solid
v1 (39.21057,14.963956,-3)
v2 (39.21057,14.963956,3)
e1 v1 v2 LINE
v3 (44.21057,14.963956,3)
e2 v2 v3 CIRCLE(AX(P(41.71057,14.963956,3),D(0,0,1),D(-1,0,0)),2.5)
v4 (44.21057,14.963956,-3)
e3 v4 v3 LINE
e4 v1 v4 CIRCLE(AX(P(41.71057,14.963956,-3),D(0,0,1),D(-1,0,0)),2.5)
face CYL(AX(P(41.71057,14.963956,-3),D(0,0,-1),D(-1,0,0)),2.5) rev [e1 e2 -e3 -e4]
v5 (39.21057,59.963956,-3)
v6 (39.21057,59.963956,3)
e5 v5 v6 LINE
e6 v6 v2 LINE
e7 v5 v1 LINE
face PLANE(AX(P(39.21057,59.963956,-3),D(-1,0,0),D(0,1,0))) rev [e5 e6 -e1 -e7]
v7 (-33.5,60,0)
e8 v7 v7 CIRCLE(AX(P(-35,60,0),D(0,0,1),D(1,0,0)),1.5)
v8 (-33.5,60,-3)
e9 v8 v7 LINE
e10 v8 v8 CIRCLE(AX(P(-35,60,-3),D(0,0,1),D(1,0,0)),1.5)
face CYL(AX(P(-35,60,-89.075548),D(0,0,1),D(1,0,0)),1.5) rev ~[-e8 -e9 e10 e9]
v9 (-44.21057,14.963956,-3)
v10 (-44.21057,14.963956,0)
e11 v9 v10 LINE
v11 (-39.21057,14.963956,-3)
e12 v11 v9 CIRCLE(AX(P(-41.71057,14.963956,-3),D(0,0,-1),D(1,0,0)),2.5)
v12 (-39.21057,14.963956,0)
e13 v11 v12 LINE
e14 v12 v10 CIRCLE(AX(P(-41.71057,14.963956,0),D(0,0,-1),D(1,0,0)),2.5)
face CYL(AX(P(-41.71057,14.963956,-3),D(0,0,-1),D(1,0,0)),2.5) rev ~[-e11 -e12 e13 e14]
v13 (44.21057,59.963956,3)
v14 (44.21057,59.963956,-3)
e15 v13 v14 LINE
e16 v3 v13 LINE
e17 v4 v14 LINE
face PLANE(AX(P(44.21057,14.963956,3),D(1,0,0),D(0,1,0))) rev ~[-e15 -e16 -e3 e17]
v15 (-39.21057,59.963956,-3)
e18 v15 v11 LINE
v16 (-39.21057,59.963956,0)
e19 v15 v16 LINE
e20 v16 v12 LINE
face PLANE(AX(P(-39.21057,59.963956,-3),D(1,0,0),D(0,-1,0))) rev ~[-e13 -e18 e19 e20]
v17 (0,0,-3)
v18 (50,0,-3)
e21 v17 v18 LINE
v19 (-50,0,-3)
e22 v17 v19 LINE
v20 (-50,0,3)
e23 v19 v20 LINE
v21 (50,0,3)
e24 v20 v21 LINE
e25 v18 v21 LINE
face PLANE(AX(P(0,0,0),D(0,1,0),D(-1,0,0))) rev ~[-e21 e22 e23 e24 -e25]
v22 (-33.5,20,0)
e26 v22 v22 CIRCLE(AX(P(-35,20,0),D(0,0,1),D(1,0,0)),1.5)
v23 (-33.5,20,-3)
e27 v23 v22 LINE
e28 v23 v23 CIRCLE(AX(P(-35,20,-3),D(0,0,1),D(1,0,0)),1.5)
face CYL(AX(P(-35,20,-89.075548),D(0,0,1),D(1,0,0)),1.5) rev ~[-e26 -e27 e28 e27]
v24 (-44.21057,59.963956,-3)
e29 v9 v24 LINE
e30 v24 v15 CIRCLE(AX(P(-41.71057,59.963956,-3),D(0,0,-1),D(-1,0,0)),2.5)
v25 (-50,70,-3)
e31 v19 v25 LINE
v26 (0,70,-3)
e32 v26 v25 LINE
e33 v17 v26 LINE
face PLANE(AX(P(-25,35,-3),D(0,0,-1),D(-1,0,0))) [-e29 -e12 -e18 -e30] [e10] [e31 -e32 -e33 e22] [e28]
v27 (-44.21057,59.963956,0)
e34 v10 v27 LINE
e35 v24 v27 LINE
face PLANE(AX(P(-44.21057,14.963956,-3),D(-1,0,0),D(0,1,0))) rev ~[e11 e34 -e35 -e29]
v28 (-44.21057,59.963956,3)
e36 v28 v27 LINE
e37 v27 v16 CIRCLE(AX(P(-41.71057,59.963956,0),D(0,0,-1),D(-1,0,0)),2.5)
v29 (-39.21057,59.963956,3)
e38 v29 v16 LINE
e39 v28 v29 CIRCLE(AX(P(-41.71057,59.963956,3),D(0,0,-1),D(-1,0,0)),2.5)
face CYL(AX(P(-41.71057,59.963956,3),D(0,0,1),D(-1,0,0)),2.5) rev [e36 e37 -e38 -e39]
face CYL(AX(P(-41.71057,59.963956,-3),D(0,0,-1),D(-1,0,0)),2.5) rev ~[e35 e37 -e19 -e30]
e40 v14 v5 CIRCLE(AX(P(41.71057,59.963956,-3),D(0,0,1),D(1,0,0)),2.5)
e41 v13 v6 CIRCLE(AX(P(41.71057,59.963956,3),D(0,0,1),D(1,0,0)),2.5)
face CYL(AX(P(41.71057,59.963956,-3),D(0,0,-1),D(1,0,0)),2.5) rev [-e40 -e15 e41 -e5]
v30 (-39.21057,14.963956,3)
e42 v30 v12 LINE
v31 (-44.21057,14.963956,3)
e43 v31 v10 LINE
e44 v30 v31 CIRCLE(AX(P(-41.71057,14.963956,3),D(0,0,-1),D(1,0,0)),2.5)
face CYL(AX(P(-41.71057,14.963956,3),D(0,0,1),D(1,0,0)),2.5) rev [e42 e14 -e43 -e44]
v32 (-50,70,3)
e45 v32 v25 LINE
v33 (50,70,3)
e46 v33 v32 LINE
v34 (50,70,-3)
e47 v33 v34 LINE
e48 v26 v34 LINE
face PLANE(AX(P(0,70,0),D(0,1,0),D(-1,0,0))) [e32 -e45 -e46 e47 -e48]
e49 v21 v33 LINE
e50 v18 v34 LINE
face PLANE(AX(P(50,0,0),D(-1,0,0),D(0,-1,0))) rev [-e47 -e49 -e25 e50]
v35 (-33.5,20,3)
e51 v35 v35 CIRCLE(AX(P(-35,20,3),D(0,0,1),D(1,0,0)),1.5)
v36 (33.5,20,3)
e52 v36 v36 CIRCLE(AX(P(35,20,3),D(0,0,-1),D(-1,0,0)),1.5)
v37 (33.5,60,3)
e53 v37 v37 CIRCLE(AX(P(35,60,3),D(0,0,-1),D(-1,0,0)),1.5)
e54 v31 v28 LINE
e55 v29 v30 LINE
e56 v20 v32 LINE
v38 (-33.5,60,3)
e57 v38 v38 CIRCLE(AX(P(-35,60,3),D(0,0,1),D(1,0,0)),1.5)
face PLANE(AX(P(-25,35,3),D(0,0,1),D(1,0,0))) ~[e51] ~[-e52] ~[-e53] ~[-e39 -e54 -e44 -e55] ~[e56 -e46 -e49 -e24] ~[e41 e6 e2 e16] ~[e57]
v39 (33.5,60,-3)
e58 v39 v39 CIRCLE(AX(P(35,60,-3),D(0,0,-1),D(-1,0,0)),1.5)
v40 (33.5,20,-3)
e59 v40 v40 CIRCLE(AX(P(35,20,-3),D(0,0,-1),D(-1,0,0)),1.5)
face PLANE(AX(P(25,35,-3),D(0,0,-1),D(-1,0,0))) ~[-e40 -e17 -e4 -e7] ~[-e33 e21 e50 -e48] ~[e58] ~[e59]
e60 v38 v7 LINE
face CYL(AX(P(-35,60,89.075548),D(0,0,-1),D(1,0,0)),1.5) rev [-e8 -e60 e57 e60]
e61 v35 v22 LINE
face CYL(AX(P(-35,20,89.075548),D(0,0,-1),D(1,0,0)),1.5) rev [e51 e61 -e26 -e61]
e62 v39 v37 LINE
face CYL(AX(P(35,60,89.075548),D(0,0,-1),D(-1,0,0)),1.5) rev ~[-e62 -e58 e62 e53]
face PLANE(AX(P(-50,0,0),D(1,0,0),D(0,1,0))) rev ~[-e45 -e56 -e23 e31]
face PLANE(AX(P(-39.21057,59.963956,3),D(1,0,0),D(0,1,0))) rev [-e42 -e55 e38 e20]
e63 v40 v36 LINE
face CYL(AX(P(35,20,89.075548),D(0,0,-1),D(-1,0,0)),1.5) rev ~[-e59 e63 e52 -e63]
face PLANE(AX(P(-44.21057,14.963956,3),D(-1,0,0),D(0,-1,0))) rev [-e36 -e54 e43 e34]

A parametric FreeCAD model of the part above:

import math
import FreeCAD as App
import Part
import Sketcher

V = App.Vector
Q = App.Units.Quantity


def add_polygon(sketch, points):
    """Adds a closed chain of lines whose ends are joined by coincident constraints."""
    first, n = sketch.GeometryCount, len(points)
    for a, b in zip(points, points[1:] + points[:1]):
        sketch.addGeometry(Part.LineSegment(App.Vector(*a, 0), App.Vector(*b, 0)), False)
    for i in range(n):
        sketch.addConstraint(Sketcher.Constraint("Coincident", first + i, 2, first + (i + 1) % n, 1))

doc = App.newDocument("Part")
body = doc.addObject("PartDesign::Body", "Body")

sketch1 = body.newObject("Sketcher::SketchObject", "Sketch")
sketch1.AttachmentSupport = (doc.getObject("XY_Plane"), [""])
sketch1.MapMode = "FlatFace"
add_polygon(sketch1, [(0, 70), (0, 0), (50, 0), (50, 70)])
sketch1.addConstraint([
    Sketcher.Constraint("Vertical", 0),
    Sketcher.Constraint("Horizontal", 1),
    Sketcher.Constraint("Vertical", 2),
    Sketcher.Constraint("Horizontal", 3),
    Sketcher.Constraint("Coincident", 0, 2, -1, 1),
    Sketcher.Constraint("DistanceX", 1, 1, 1, 2, Q("50 mm")),
    Sketcher.Constraint("DistanceY", 0, 2, 0, 1, Q("70 mm")),
])
pad1 = body.newObject("PartDesign::Pad", "Pad")
pad1.Profile = sketch1
pad1.Length = 3

sketch2 = body.newObject("Sketcher::SketchObject", "Sketch001")
sketch2.AttachmentSupport = (doc.getObject("XY_Plane"), [""])
sketch2.MapMode = "FlatFace"
sketch2.AttachmentOffset = App.Placement(V(0, 0, 3), App.Rotation())
sketch2.addGeometry([
    Part.Circle(V(35, 20, 0), V(0, 0, 1), 1.5),
    Part.Circle(V(35, 60, 0), V(0, 0, 1), 1.5),
], False)
sketch2.addConstraint([
    Sketcher.Constraint("Equal", 0, 1),
    Sketcher.Constraint("Vertical", 0, 3, 1, 3),
    Sketcher.Constraint("Diameter", 0, Q("3 mm")),
    Sketcher.Constraint("DistanceX", -1, 1, 0, 3, Q("35 mm")),
    Sketcher.Constraint("DistanceY", -1, 1, 0, 3, Q("20 mm")),
    Sketcher.Constraint("DistanceY", -1, 1, 1, 3, Q("60 mm")),
])
doc.recompute()
hole = body.newObject("PartDesign::Hole", "Hole")
hole.Profile = sketch2
hole.ThreadType = "None"
hole.Diameter = 3
hole.DepthType = "ThroughAll"

sketch3 = body.newObject("Sketcher::SketchObject", "Sketch002")
sketch3.AttachmentSupport = (doc.getObject("XY_Plane"), [""])
sketch3.MapMode = "FlatFace"
sketch3.AttachmentOffset = App.Placement(V(0, 0, 3), App.Rotation())
sketch3.addGeometry([
    Part.ArcOfCircle(Part.Circle(V(41.7, 60, 0), V(0, 0, 1), 2.5), math.radians(0), math.radians(180)),
    Part.LineSegment(V(39.2, 60, 0), V(39.2, 15, 0)),
    Part.ArcOfCircle(Part.Circle(V(41.7, 15, 0), V(0, 0, 1), 2.5), math.radians(180), math.radians(360)),
    Part.LineSegment(V(44.2, 15, 0), V(44.2, 60, 0)),
], False)
sketch3.addConstraint([
    Sketcher.Constraint("Tangent", 0, 2, 1, 1),
    Sketcher.Constraint("Tangent", 1, 2, 2, 1),
    Sketcher.Constraint("Tangent", 2, 2, 3, 1),
    Sketcher.Constraint("Tangent", 3, 2, 0, 1),
    Sketcher.Constraint("Vertical", 1),
    Sketcher.Constraint("Vertical", 3),
    Sketcher.Constraint("Radius", 0, Q("2.5 mm")),
    Sketcher.Constraint("DistanceY", 1, 2, 1, 1, Q("45 mm")),
    Sketcher.Constraint("DistanceX", -1, 1, 0, 3, Q("41.71057 mm")),
    Sketcher.Constraint("DistanceY", -1, 1, 0, 3, Q("59.963956 mm")),
])
pocket1 = body.newObject("PartDesign::Pocket", "Pocket")
pocket1.Profile = sketch3
pocket1.Length = 33
body2 = doc.addObject("PartDesign::Body", "Body001")
doc.recompute()

body2.BaseFeature = body
doc.recompute()

mirroring = doc.addObject("Part::Mirroring", "Mirroring")
mirroring.Source = body
mirroring.Base = V(0, 0, 0)
mirroring.Normal = V(0, 0, 1)
body3 = doc.addObject("PartDesign::Body", "Body002")
body3.BaseFeature = mirroring
boolean = body2.newObject("PartDesign::Boolean", "Boolean")
boolean.Type = "Fuse"
boolean.addObjects([body3])
doc.recompute()
body4 = doc.addObject("PartDesign::Body", "Body003")
doc.recompute()

body4.BaseFeature = body2
doc.recompute()

mirroring2 = doc.addObject("Part::Mirroring", "Mirroring001")
mirroring2.Source = body2
mirroring2.Base = V(0, 0, 0)
mirroring2.Normal = V(1, 0, 0)
body5 = doc.addObject("PartDesign::Body", "Body004")
body5.BaseFeature = mirroring2
boolean2 = body4.newObject("PartDesign::Boolean", "Boolean001")
boolean2.Type = "Fuse"
boolean2.addObjects([body5])
doc.recompute()
mirroring.Visibility = False
mirroring2.Visibility = False

doc.recompute()
